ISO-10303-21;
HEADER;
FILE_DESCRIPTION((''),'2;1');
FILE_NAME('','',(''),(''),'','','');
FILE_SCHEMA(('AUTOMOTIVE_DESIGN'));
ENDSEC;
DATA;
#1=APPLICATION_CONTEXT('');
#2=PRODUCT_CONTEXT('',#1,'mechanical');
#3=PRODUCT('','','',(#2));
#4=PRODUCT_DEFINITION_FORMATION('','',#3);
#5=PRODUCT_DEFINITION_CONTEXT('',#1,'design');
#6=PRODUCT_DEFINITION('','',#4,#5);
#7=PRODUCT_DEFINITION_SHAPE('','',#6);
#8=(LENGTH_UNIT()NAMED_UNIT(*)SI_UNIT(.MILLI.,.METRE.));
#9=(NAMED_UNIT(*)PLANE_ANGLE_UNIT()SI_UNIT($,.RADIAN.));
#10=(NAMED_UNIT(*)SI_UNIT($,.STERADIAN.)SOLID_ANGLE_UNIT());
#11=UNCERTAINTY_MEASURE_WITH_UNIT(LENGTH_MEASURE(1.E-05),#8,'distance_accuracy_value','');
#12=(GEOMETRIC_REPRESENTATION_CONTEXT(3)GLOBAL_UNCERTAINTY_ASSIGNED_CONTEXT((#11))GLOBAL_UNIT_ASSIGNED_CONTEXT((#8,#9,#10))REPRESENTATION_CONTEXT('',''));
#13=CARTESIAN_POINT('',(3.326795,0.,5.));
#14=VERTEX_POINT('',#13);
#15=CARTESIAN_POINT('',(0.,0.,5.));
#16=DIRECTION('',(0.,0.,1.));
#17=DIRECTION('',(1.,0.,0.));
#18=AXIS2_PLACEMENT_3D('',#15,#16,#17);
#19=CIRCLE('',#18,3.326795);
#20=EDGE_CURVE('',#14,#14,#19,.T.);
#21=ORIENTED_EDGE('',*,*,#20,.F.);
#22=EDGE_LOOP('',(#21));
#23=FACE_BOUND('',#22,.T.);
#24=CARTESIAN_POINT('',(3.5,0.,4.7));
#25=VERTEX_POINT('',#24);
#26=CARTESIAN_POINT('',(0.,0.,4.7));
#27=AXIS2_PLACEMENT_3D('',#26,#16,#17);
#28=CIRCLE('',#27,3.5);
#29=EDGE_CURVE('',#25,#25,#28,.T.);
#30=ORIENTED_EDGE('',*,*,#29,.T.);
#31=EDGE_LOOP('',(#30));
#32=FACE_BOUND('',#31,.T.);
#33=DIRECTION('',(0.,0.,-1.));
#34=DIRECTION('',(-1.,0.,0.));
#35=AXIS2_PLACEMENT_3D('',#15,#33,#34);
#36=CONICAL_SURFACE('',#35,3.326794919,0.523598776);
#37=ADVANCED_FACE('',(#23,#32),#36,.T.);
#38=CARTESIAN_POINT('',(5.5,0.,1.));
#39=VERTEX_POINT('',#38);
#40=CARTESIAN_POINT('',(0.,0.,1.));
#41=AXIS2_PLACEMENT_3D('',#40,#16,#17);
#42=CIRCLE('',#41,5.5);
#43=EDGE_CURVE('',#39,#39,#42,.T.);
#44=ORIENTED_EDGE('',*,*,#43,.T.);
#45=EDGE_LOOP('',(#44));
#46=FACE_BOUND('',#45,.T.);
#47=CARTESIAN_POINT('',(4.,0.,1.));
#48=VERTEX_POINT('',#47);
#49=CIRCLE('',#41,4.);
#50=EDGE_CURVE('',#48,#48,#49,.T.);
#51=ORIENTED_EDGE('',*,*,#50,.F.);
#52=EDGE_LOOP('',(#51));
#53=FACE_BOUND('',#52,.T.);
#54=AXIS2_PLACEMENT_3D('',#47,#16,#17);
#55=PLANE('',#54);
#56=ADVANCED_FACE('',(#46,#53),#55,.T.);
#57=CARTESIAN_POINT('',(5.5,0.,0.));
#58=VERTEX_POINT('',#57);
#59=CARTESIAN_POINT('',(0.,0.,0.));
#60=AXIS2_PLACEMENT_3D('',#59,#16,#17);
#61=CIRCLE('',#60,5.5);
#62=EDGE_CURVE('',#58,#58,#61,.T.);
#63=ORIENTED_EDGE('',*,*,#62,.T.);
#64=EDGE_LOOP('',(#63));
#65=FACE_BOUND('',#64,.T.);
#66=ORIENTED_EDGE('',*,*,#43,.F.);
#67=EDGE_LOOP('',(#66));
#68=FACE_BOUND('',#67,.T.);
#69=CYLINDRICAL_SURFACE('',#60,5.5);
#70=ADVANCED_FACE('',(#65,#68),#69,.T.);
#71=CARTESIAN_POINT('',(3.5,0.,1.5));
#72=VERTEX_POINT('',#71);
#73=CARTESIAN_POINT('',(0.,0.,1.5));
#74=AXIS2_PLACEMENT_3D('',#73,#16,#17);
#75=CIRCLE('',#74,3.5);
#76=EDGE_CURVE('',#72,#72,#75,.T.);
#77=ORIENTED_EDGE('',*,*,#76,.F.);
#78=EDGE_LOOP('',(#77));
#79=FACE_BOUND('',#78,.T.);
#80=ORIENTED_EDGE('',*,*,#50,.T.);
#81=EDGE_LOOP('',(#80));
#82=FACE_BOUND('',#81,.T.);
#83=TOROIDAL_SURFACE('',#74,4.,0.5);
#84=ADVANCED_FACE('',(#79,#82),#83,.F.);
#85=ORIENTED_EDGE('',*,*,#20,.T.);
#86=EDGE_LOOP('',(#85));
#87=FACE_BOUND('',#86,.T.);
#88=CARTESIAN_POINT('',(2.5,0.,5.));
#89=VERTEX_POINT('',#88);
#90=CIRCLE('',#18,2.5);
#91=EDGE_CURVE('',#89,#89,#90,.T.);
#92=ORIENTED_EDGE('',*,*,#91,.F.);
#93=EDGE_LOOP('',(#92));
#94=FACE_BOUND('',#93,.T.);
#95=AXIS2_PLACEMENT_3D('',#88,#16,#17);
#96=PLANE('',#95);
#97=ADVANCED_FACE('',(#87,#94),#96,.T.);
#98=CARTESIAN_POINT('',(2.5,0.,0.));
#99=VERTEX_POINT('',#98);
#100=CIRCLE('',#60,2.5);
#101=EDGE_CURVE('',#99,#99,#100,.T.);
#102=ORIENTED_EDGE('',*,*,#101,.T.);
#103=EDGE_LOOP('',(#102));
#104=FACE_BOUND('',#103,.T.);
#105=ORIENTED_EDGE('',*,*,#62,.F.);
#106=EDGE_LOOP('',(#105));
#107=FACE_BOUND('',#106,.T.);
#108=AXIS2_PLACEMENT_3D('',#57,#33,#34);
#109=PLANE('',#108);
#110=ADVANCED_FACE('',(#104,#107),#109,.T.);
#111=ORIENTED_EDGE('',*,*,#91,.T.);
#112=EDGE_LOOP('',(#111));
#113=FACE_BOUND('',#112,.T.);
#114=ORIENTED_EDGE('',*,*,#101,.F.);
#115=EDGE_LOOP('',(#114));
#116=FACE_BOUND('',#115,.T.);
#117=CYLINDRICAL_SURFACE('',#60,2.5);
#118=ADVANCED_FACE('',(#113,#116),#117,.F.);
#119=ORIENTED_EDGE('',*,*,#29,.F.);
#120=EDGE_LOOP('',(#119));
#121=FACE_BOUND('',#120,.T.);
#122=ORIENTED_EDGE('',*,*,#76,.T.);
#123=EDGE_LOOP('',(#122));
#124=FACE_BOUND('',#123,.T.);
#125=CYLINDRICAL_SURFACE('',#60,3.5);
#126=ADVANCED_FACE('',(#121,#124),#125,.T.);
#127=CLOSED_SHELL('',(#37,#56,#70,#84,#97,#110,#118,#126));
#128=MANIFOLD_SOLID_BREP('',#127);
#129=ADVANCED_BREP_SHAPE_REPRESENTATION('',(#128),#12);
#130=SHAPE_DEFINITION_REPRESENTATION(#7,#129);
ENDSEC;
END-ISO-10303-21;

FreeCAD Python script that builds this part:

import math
import FreeCAD as App
import Part
import Sketcher
from FreeCAD import Vector
Q = App.Units.Quantity

doc = App.newDocument("Part")
body = doc.addObject("PartDesign::Body", "Body")

sketch1 = body.newObject("Sketcher::SketchObject", "Sketch")
sketch1.AttachmentSupport = (doc.getObject("XZ_Plane"), [""])
sketch1.MapMode = "FlatFace"
sketch1.addGeometry([
    Part.LineSegment(Vector(3.5, 4.7, 0), Vector(3.5, 1.5, 0)),
    Part.ArcOfCircle(Part.Circle(Vector(4, 1.5, 0), Vector(0, 0, 1), 0.5), math.radians(180), math.radians(270)),
    Part.LineSegment(Vector(4, 1, 0), Vector(5.5, 1, 0)),
    Part.LineSegment(Vector(5.5, 1, 0), Vector(5.5, 0, 0)),
    Part.LineSegment(Vector(5.5, 0, 0), Vector(2.5, 0, 0)),
    Part.LineSegment(Vector(2.5, 0, 0), Vector(2.5, 5, 0)),
    Part.LineSegment(Vector(2.5, 5, 0), Vector(3.33, 5, 0)),
    Part.LineSegment(Vector(3.33, 5, 0), Vector(3.5, 4.7, 0)),
], False)
sketch1.addConstraint([
    Sketcher.Constraint("Tangent", 0, 2, 1, 1),
    Sketcher.Constraint("Tangent", 1, 2, 2, 1),
    Sketcher.Constraint("Coincident", 2, 2, 3, 1),
    Sketcher.Constraint("Coincident", 3, 2, 4, 1),
    Sketcher.Constraint("Coincident", 4, 2, 5, 1),
    Sketcher.Constraint("Coincident", 5, 2, 6, 1),
    Sketcher.Constraint("Coincident", 6, 2, 7, 1),
    Sketcher.Constraint("Coincident", 7, 2, 0, 1),
    Sketcher.Constraint("Vertical", 0),
    Sketcher.Constraint("Horizontal", 2),
    Sketcher.Constraint("Vertical", 3),
    Sketcher.Constraint("Horizontal", 4),
    Sketcher.Constraint("Vertical", 5),
    Sketcher.Constraint("Horizontal", 6),
    Sketcher.Constraint("PointOnObject", 3, 2, -1),
    Sketcher.Constraint("Radius", 1, Q("0.5 mm")),
    Sketcher.Constraint("DistanceX", 4, 2, 4, 1, Q("3 mm")),
    Sketcher.Constraint("DistanceY", 3, 2, 3, 1, Q("1 mm")),
    Sketcher.Constraint("DistanceY", 5, 1, 5, 2, Q("5 mm")),
    Sketcher.Constraint("Angle", 7, Q("-60 deg")),
    Sketcher.Constraint("DistanceX", 2, 1, 2, 2, Q("1.5 mm")),
    Sketcher.Constraint("DistanceY", 0, 2, 0, 1, Q("3.2 mm")),
    Sketcher.Constraint("DistanceX", -1, 1, 1, 3, Q("4 mm")),
])
revolution = body.newObject("PartDesign::Revolution", "Revolution")
revolution.Profile = sketch1
revolution.ReferenceAxis = (sketch1, ["V_Axis"])
revolution.Angle = 360

doc.recompute()
